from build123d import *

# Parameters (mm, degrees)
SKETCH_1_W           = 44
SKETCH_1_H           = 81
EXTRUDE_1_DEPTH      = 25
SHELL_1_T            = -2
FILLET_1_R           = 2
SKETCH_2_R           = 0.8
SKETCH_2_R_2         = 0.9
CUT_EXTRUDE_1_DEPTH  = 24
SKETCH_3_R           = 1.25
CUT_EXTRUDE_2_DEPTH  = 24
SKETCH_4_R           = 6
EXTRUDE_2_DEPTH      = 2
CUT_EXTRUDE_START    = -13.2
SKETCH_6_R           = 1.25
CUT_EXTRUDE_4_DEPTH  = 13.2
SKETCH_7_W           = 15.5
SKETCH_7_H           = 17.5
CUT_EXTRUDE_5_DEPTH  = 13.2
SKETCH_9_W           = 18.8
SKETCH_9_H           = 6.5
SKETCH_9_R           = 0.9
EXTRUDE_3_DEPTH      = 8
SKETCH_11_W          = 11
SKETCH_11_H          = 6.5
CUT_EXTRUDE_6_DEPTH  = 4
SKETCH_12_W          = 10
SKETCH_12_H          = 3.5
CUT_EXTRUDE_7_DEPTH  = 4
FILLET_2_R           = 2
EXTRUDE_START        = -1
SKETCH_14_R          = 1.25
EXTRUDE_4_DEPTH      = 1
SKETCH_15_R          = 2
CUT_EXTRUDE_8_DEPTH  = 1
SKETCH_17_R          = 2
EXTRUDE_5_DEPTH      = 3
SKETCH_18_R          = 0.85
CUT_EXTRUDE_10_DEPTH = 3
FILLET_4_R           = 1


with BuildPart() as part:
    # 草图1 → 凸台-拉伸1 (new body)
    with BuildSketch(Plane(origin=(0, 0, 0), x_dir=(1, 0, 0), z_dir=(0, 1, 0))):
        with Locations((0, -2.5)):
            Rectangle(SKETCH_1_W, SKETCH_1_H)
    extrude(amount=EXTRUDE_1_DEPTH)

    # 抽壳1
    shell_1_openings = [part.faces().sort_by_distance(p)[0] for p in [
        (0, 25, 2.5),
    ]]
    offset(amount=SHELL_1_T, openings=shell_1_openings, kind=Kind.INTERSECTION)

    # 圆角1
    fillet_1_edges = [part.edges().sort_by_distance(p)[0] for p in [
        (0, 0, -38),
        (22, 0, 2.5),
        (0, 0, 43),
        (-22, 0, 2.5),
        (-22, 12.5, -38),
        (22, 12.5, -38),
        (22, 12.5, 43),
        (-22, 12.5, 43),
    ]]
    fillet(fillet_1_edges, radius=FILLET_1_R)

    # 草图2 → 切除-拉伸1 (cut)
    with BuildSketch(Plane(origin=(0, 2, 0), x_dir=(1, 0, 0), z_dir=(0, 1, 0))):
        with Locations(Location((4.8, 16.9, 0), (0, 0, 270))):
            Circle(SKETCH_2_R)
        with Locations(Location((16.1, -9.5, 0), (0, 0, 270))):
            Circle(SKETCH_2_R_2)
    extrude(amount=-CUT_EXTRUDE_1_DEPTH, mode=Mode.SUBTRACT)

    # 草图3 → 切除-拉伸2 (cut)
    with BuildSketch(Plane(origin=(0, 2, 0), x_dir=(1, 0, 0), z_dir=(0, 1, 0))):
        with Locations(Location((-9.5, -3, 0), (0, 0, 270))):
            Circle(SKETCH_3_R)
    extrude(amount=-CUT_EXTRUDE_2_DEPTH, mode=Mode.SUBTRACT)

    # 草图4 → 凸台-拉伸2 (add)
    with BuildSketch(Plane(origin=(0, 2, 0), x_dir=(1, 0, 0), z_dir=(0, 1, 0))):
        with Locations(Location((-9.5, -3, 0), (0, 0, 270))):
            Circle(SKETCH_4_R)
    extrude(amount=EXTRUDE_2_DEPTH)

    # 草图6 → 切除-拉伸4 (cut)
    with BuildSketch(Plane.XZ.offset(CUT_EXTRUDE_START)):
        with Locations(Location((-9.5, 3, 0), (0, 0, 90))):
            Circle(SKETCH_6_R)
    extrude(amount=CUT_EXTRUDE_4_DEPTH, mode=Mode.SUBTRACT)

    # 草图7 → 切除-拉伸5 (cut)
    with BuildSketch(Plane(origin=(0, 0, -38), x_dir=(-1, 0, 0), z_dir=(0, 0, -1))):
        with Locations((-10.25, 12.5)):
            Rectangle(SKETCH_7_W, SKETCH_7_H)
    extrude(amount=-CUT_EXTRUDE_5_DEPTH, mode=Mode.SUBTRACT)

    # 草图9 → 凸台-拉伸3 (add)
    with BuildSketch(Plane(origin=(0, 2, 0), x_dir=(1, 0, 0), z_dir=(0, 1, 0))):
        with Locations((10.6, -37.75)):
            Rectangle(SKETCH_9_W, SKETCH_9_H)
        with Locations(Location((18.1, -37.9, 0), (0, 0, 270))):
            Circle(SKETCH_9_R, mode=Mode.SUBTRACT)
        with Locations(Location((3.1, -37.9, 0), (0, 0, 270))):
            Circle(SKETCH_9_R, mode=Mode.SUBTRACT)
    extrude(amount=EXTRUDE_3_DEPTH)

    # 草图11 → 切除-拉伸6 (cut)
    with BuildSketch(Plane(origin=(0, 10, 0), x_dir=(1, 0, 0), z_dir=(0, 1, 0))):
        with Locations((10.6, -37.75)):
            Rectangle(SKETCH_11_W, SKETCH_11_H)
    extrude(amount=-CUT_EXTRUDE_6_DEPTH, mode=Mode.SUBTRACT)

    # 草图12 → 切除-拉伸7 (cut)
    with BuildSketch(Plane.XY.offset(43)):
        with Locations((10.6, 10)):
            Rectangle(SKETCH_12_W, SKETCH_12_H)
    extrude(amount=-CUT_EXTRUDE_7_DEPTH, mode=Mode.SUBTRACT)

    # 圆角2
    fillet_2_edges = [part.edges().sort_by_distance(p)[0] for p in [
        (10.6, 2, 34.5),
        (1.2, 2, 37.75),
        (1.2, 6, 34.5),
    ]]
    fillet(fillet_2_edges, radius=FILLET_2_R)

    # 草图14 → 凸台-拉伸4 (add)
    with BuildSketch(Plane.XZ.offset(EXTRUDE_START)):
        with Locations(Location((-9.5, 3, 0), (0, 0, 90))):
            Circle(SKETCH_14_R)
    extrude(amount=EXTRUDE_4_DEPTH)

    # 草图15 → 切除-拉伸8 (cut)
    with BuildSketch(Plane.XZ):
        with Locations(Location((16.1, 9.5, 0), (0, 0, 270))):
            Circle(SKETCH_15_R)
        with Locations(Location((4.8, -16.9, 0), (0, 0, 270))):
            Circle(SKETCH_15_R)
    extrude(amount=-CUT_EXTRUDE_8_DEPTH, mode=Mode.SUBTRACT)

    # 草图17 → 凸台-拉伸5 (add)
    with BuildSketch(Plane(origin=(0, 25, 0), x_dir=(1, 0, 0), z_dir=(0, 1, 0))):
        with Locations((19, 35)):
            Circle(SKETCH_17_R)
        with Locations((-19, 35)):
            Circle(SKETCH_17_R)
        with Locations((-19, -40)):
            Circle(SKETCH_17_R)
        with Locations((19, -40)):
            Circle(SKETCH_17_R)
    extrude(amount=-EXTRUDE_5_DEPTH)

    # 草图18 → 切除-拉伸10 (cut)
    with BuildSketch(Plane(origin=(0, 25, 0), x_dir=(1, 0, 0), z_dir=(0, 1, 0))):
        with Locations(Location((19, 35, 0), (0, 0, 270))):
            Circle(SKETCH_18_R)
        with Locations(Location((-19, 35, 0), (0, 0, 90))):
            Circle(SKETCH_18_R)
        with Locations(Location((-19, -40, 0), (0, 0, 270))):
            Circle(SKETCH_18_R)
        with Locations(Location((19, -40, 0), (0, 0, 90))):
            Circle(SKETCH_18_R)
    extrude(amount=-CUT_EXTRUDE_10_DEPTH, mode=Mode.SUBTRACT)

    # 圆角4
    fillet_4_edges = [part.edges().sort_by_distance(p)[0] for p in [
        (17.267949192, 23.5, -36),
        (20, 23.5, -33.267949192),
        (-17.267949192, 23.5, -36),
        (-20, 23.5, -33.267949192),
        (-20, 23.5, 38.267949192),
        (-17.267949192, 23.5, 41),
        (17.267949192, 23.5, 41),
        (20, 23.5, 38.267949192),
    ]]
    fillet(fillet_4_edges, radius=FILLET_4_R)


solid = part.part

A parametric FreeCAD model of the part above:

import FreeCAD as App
import Part
import Sketcher
Q = App.Units.Quantity


def edges_at(feature, points):
    """Names of the edges that pass closest to the given points."""
    edges = feature.Shape.Edges
    near = lambda p: min(range(len(edges)), key=lambda i: edges[i].distToShape(Part.Vertex(*p))[0])
    return sorted({f"Edge{near(p) + 1}" for p in points})


def faces_at(feature, points):
    """Names of the faces that lie closest to the given points."""
    faces = feature.Shape.Faces
    near = lambda p: min(range(len(faces)), key=lambda i: faces[i].distToShape(Part.Vertex(*p))[0])
    return sorted({f"Face{near(p) + 1}" for p in points})

doc = App.newDocument("Part")
body = doc.addObject("PartDesign::Body", "Body")

sketch1 = body.newObject("Sketcher::SketchObject", "Sketch")
sketch1.AttachmentSupport = (doc.getObject("XZ_Plane"), [""])
sketch1.MapMode = "FlatFace"
sketch1.addGeometry([
    Part.LineSegment(App.Vector(-22, -38, 0), App.Vector(-22, 43, 0)),
    Part.LineSegment(App.Vector(-22, 43, 0), App.Vector(22, 43, 0)),
    Part.LineSegment(App.Vector(22, 43, 0), App.Vector(22, -38, 0)),
    Part.LineSegment(App.Vector(22, -38, 0), App.Vector(-22, -38, 0)),
], False)
sketch1.addConstraint([
    Sketcher.Constraint("Coincident", 0, 2, 1, 1),
    Sketcher.Constraint("Coincident", 1, 2, 2, 1),
    Sketcher.Constraint("Coincident", 2, 2, 3, 1),
    Sketcher.Constraint("Coincident", 3, 2, 0, 1),
    Sketcher.Constraint("Vertical", 0),
    Sketcher.Constraint("Horizontal", 1),
    Sketcher.Constraint("Vertical", 2),
    Sketcher.Constraint("Horizontal", 3),
    Sketcher.Constraint("DistanceX", 1, 1, 1, 2, Q("44 mm")),
    Sketcher.Constraint("DistanceY", 0, 1, 0, 2, Q("81 mm")),
    Sketcher.Constraint("DistanceX", 0, 2, -1, 1, Q("22 mm")),
    Sketcher.Constraint("DistanceY", -1, 1, 0, 2, Q("43 mm")),
])
pad1 = body.newObject("PartDesign::Pad", "Pad")
pad1.Profile = sketch1
pad1.Length = 25
pad1.Reversed = True
doc.recompute()

thickness = body.newObject("PartDesign::Thickness", "Thickness")
thickness.Base = (pad1, faces_at(pad1, [(0, 25, 2.5)]))
thickness.Value = 2
thickness.Reversed = True
thickness.Join = "Intersection"
doc.recompute()

fillet = body.newObject("PartDesign::Fillet", "Fillet")
fillet.Base = (thickness, edges_at(thickness, [
    (0, 0, -38),
    (22, 0, 2.5),
    (0, 0, 43),
    (-22, 0, 2.5),
    (-22, 12.5, -38),
    (22, 12.5, -38),
    (22, 12.5, 43),
    (-22, 12.5, 43),
]))
fillet.Radius = 2

sketch2 = body.newObject("Sketcher::SketchObject", "Sketch001")
sketch2.AttachmentSupport = (doc.getObject("XZ_Plane"), [""])
sketch2.MapMode = "FlatFace"
sketch2.AttachmentOffset = App.Placement(App.Vector(0, 0, -2), App.Rotation())
sketch2.addGeometry([
    Part.Circle(App.Vector(4.8, -16.9, 0), App.Vector(0, 0, 1), 0.8),
    Part.Circle(App.Vector(16.1, 9.5, 0), App.Vector(0, 0, 1), 0.9),
], False)
sketch2.addConstraint([
    Sketcher.Constraint("Diameter", 0, Q("1.6 mm")),
    Sketcher.Constraint("Diameter", 1, Q("1.8 mm")),
    Sketcher.Constraint("DistanceX", -1, 1, 0, 3, Q("4.8 mm")),
    Sketcher.Constraint("DistanceY", 0, 3, -1, 1, Q("16.9 mm")),
    Sketcher.Constraint("DistanceX", -1, 1, 1, 3, Q("16.1 mm")),
    Sketcher.Constraint("DistanceY", -1, 1, 1, 3, Q("9.5 mm")),
])
pocket1 = body.newObject("PartDesign::Pocket", "Pocket")
pocket1.Profile = sketch2
pocket1.Length = 24
pocket1.Reversed = True

sketch3 = body.newObject("Sketcher::SketchObject", "Sketch002")
sketch3.AttachmentSupport = (doc.getObject("XZ_Plane"), [""])
sketch3.MapMode = "FlatFace"
sketch3.AttachmentOffset = App.Placement(App.Vector(0, 0, -2), App.Rotation())
sketch3.addGeometry(Part.Circle(App.Vector(-9.5, 3, 0), App.Vector(0, 0, 1), 1.2), False)
sketch3.addConstraint([
    Sketcher.Constraint("Diameter", 0, Q("2.5 mm")),
    Sketcher.Constraint("DistanceY", -1, 1, 0, 3, Q("3 mm")),
    Sketcher.Constraint("DistanceX", 0, 3, -1, 1, Q("9.5 mm")),
])
pocket2 = body.newObject("PartDesign::Pocket", "Pocket001")
pocket2.Profile = sketch3
pocket2.Length = 24
pocket2.Reversed = True

sketch4 = body.newObject("Sketcher::SketchObject", "Sketch003")
sketch4.AttachmentSupport = (doc.getObject("XZ_Plane"), [""])
sketch4.MapMode = "FlatFace"
sketch4.AttachmentOffset = App.Placement(App.Vector(0, 0, -2), App.Rotation())
sketch4.addGeometry(Part.Circle(App.Vector(-10, 3, 0), App.Vector(0, 0, 1), 6), False)
sketch4.addConstraint([
    Sketcher.Constraint("Diameter", 0, Q("12 mm")),
    Sketcher.Constraint("DistanceY", -1, 1, 0, 3, Q("3 mm")),
    Sketcher.Constraint("DistanceX", 0, 3, -1, 1, Q("9.5 mm")),
])
pad2 = body.newObject("PartDesign::Pad", "Pad001")
pad2.Profile = sketch4
pad2.Length = 2
pad2.Reversed = True

sketch5 = body.newObject("Sketcher::SketchObject", "Sketch004")
sketch5.AttachmentSupport = (doc.getObject("XZ_Plane"), [""])
sketch5.MapMode = "FlatFace"
sketch5.AttachmentOffset = App.Placement(App.Vector(0, 0, -13.2), App.Rotation())
sketch5.addGeometry(Part.Circle(App.Vector(-9.5, 3, 0), App.Vector(0, 0, 1), 1.2), False)
sketch5.addConstraint([
    Sketcher.Constraint("Diameter", 0, Q("2.5 mm")),
    Sketcher.Constraint("DistanceY", -1, 1, 0, 3, Q("3 mm")),
    Sketcher.Constraint("DistanceX", 0, 3, -1, 1, Q("9.5 mm")),
])
pocket3 = body.newObject("PartDesign::Pocket", "Pocket002")
pocket3.Profile = sketch5
pocket3.Length = 13.2
pocket3.Reversed = True

sketch6 = body.newObject("Sketcher::SketchObject", "Sketch005")
sketch6.AttachmentSupport = (doc.getObject("XY_Plane"), [""])
sketch6.MapMode = "FlatFace"
sketch6.AttachmentOffset = App.Placement(App.Vector(0, 0, -38), App.Rotation())
sketch6.addGeometry([
    Part.LineSegment(App.Vector(18, 21, 0), App.Vector(18, 4, 0)),
    Part.LineSegment(App.Vector(18, 4, 0), App.Vector(2, 4, 0)),
    Part.LineSegment(App.Vector(2, 4, 0), App.Vector(2, 21, 0)),
    Part.LineSegment(App.Vector(2, 21, 0), App.Vector(18, 21, 0)),
], False)
sketch6.addConstraint([
    Sketcher.Constraint("Coincident", 0, 2, 1, 1),
    Sketcher.Constraint("Coincident", 1, 2, 2, 1),
    Sketcher.Constraint("Coincident", 2, 2, 3, 1),
    Sketcher.Constraint("Coincident", 3, 2, 0, 1),
    Sketcher.Constraint("Vertical", 0),
    Sketcher.Constraint("Horizontal", 1),
    Sketcher.Constraint("Vertical", 2),
    Sketcher.Constraint("Horizontal", 3),
    Sketcher.Constraint("DistanceX", 1, 2, 1, 1, Q("15.5 mm")),
    Sketcher.Constraint("DistanceY", 0, 2, 0, 1, Q("17.5 mm")),
    Sketcher.Constraint("DistanceX", -1, 1, 0, 2, Q("18 mm")),
    Sketcher.Constraint("DistanceY", -1, 1, 0, 2, Q("3.75 mm")),
])
pocket4 = body.newObject("PartDesign::Pocket", "Pocket003")
pocket4.Profile = sketch6
pocket4.Length = 13.2
pocket4.Reversed = True

sketch7 = body.newObject("Sketcher::SketchObject", "Sketch006")
sketch7.AttachmentSupport = (doc.getObject("XZ_Plane"), [""])
sketch7.MapMode = "FlatFace"
sketch7.AttachmentOffset = App.Placement(App.Vector(0, 0, -2), App.Rotation())
sketch7.addGeometry([
    Part.LineSegment(App.Vector(1.2, 34.5, 0), App.Vector(1.2, 41, 0)),
    Part.LineSegment(App.Vector(1.2, 41, 0), App.Vector(20, 41, 0)),
    Part.LineSegment(App.Vector(20, 41, 0), App.Vector(20, 34.5, 0)),
    Part.LineSegment(App.Vector(20, 34.5, 0), App.Vector(1.2, 34.5, 0)),
    Part.Circle(App.Vector(3.1, 37.9, 0), App.Vector(0, 0, 1), 0.9),
    Part.Circle(App.Vector(18.1, 37.9, 0), App.Vector(0, 0, 1), 0.9),
], False)
sketch7.addConstraint([
    Sketcher.Constraint("Coincident", 0, 2, 1, 1),
    Sketcher.Constraint("Coincident", 1, 2, 2, 1),
    Sketcher.Constraint("Coincident", 2, 2, 3, 1),
    Sketcher.Constraint("Coincident", 3, 2, 0, 1),
    Sketcher.Constraint("Vertical", 0),
    Sketcher.Constraint("Horizontal", 1),
    Sketcher.Constraint("Vertical", 2),
    Sketcher.Constraint("Horizontal", 3),
    Sketcher.Constraint("Equal", 4, 5),
    Sketcher.Constraint("Horizontal", 4, 3, 5, 3),
    Sketcher.Constraint("Diameter", 4, Q("1.8 mm")),
    Sketcher.Constraint("DistanceX", 1, 1, 1, 2, Q("18.8 mm")),
    Sketcher.Constraint("DistanceY", 0, 1, 0, 2, Q("6.5 mm")),
    Sketcher.Constraint("DistanceY", -1, 1, 0, 2, Q("41 mm")),
    Sketcher.Constraint("DistanceX", -1, 1, 1, 2, Q("20 mm")),
    Sketcher.Constraint("DistanceX", 4, 3, 5, 3, Q("15 mm")),
    Sketcher.Constraint("DistanceX", -1, 1, 4, 3, Q("3.1 mm")),
    Sketcher.Constraint("DistanceY", -1, 1, 4, 3, Q("37.9 mm")),
])
pad3 = body.newObject("PartDesign::Pad", "Pad002")
pad3.Profile = sketch7
pad3.Length = 8
pad3.Reversed = True

sketch8 = body.newObject("Sketcher::SketchObject", "Sketch007")
sketch8.AttachmentSupport = (doc.getObject("XZ_Plane"), [""])
sketch8.MapMode = "FlatFace"
sketch8.AttachmentOffset = App.Placement(App.Vector(0, 0, -10), App.Rotation())
sketch8.addGeometry([
    Part.LineSegment(App.Vector(5, 34, 0), App.Vector(5, 41, 0)),
    Part.LineSegment(App.Vector(5, 41, 0), App.Vector(16, 41, 0)),
    Part.LineSegment(App.Vector(16, 41, 0), App.Vector(16, 34, 0)),
    Part.LineSegment(App.Vector(16, 34, 0), App.Vector(5, 34, 0)),
], False)
sketch8.addConstraint([
    Sketcher.Constraint("Coincident", 0, 2, 1, 1),
    Sketcher.Constraint("Coincident", 1, 2, 2, 1),
    Sketcher.Constraint("Coincident", 2, 2, 3, 1),
    Sketcher.Constraint("Coincident", 3, 2, 0, 1),
    Sketcher.Constraint("Vertical", 0),
    Sketcher.Constraint("Horizontal", 1),
    Sketcher.Constraint("Vertical", 2),
    Sketcher.Constraint("Horizontal", 3),
    Sketcher.Constraint("DistanceX", 1, 1, 1, 2, Q("11 mm")),
    Sketcher.Constraint("DistanceY", 0, 1, 0, 2, Q("6.5 mm")),
    Sketcher.Constraint("DistanceY", -1, 1, 0, 2, Q("41 mm")),
    Sketcher.Constraint("DistanceX", -1, 1, 0, 2, Q("5.1 mm")),
])
pocket5 = body.newObject("PartDesign::Pocket", "Pocket004")
pocket5.Profile = sketch8
pocket5.Length = 4
pocket5.Reversed = True

sketch9 = body.newObject("Sketcher::SketchObject", "Sketch008")
sketch9.AttachmentSupport = (doc.getObject("XY_Plane"), [""])
sketch9.MapMode = "FlatFace"
sketch9.AttachmentOffset = App.Placement(App.Vector(0, 0, 43), App.Rotation())
sketch9.addGeometry([
    Part.LineSegment(App.Vector(5.6, 11.8, 0), App.Vector(5.6, 8.2, 0)),
    Part.LineSegment(App.Vector(5.6, 8.2, 0), App.Vector(15.6, 8.2, 0)),
    Part.LineSegment(App.Vector(15.6, 8.2, 0), App.Vector(15.6, 11.8, 0)),
    Part.LineSegment(App.Vector(15.6, 11.8, 0), App.Vector(5.6, 11.8, 0)),
], False)
sketch9.addConstraint([
    Sketcher.Constraint("Coincident", 0, 2, 1, 1),
    Sketcher.Constraint("Coincident", 1, 2, 2, 1),
    Sketcher.Constraint("Coincident", 2, 2, 3, 1),
    Sketcher.Constraint("Coincident", 3, 2, 0, 1),
    Sketcher.Constraint("Vertical", 0),
    Sketcher.Constraint("Horizontal", 1),
    Sketcher.Constraint("Vertical", 2),
    Sketcher.Constraint("Horizontal", 3),
    Sketcher.Constraint("DistanceX", 1, 1, 1, 2, Q("10 mm")),
    Sketcher.Constraint("DistanceY", 0, 2, 0, 1, Q("3.5 mm")),
    Sketcher.Constraint("DistanceX", -1, 1, 0, 2, Q("5.6 mm")),
    Sketcher.Constraint("DistanceY", -1, 1, 0, 2, Q("8.25 mm")),
])
pocket6 = body.newObject("PartDesign::Pocket", "Pocket005")
pocket6.Profile = sketch9
pocket6.Length = 4
doc.recompute()

fillet2 = body.newObject("PartDesign::Fillet", "Fillet001")
fillet2.Base = (pocket6, edges_at(pocket6, [(10.6, 2, 34.5), (1.2, 2, 37.75), (1.2, 6, 34.5)]))
fillet2.Radius = 2

sketch10 = body.newObject("Sketcher::SketchObject", "Sketch009")
sketch10.AttachmentSupport = (doc.getObject("XZ_Plane"), [""])
sketch10.MapMode = "FlatFace"
sketch10.AttachmentOffset = App.Placement(App.Vector(0, 0, -1), App.Rotation())
sketch10.addGeometry(Part.Circle(App.Vector(-9.5, 3, 0), App.Vector(0, 0, 1), 1.2), False)
sketch10.addConstraint([
    Sketcher.Constraint("Diameter", 0, Q("2.5 mm")),
    Sketcher.Constraint("DistanceY", -1, 1, 0, 3, Q("3 mm")),
    Sketcher.Constraint("DistanceX", 0, 3, -1, 1, Q("9.5 mm")),
])
pad4 = body.newObject("PartDesign::Pad", "Pad003")
pad4.Profile = sketch10
pad4.Length = 1

sketch11 = body.newObject("Sketcher::SketchObject", "Sketch010")
sketch11.AttachmentSupport = (doc.getObject("XZ_Plane"), [""])
sketch11.MapMode = "FlatFace"
sketch11.addGeometry([
    Part.Circle(App.Vector(16.1, 9.5, 0), App.Vector(0, 0, 1), 2),
    Part.Circle(App.Vector(4.8, -16.9, 0), App.Vector(0, 0, 1), 2),
], False)
sketch11.addConstraint([
    Sketcher.Constraint("Equal", 0, 1),
    Sketcher.Constraint("Diameter", 0, Q("4 mm")),
    Sketcher.Constraint("DistanceX", -1, 1, 0, 3, Q("16.1 mm")),
    Sketcher.Constraint("DistanceY", -1, 1, 0, 3, Q("9.5 mm")),
    Sketcher.Constraint("DistanceX", -1, 1, 1, 3, Q("4.8 mm")),
    Sketcher.Constraint("DistanceY", 1, 3, -1, 1, Q("16.9 mm")),
])
pocket7 = body.newObject("PartDesign::Pocket", "Pocket006")
pocket7.Profile = sketch11
pocket7.Length = 1

sketch12 = body.newObject("Sketcher::SketchObject", "Sketch011")
sketch12.AttachmentSupport = (doc.getObject("XZ_Plane"), [""])
sketch12.MapMode = "FlatFace"
sketch12.AttachmentOffset = App.Placement(App.Vector(0, 0, -25), App.Rotation())
sketch12.addGeometry([
    Part.Circle(App.Vector(19, -35, 0), App.Vector(0, 0, 1), 2),
    Part.Circle(App.Vector(-19, -35, 0), App.Vector(0, 0, 1), 2),
    Part.Circle(App.Vector(-19, 40, 0), App.Vector(0, 0, 1), 2),
    Part.Circle(App.Vector(19, 40, 0), App.Vector(0, 0, 1), 2),
], False)
sketch12.addConstraint([
    Sketcher.Constraint("Equal", 0, 1),
    Sketcher.Constraint("Equal", 1, 2),
    Sketcher.Constraint("Equal", 2, 3),
    Sketcher.Constraint("Symmetric", 0, 3, 1, 3, -2),
    Sketcher.Constraint("Symmetric", 2, 3, 3, 3, -2),
    Sketcher.Constraint("Vertical", 1, 3, 2, 3),
    Sketcher.Constraint("Diameter", 0, Q("4 mm")),
    Sketcher.Constraint("DistanceX", -1, 1, 0, 3, Q("19 mm")),
    Sketcher.Constraint("DistanceY", 0, 3, -1, 1, Q("35 mm")),
    Sketcher.Constraint("DistanceY", -1, 1, 2, 3, Q("40 mm")),
])
pad5 = body.newObject("PartDesign::Pad", "Pad004")
pad5.Profile = sketch12
pad5.Length = 3

sketch13 = body.newObject("Sketcher::SketchObject", "Sketch012")
sketch13.AttachmentSupport = (doc.getObject("XZ_Plane"), [""])
sketch13.MapMode = "FlatFace"
sketch13.AttachmentOffset = App.Placement(App.Vector(0, 0, -25), App.Rotation())
sketch13.addGeometry([
    Part.Circle(App.Vector(19, -35, 0), App.Vector(0, 0, 1), 0.8),
    Part.Circle(App.Vector(-19, -35, 0), App.Vector(0, 0, 1), 0.8),
    Part.Circle(App.Vector(-19, 40, 0), App.Vector(0, 0, 1), 0.8),
    Part.Circle(App.Vector(19, 40, 0), App.Vector(0, 0, 1), 0.8),
], False)
sketch13.addConstraint([
    Sketcher.Constraint("Equal", 0, 1),
    Sketcher.Constraint("Equal", 1, 2),
    Sketcher.Constraint("Equal", 2, 3),
    Sketcher.Constraint("Symmetric", 0, 3, 1, 3, -2),
    Sketcher.Constraint("Symmetric", 2, 3, 3, 3, -2),
    Sketcher.Constraint("Vertical", 1, 3, 2, 3),
    Sketcher.Constraint("Diameter", 0, Q("1.7 mm")),
    Sketcher.Constraint("DistanceX", -1, 1, 0, 3, Q("19 mm")),
    Sketcher.Constraint("DistanceY", 0, 3, -1, 1, Q("35 mm")),
    Sketcher.Constraint("DistanceY", -1, 1, 2, 3, Q("40 mm")),
])
pocket8 = body.newObject("PartDesign::Pocket", "Pocket007")
pocket8.Profile = sketch13
pocket8.Length = 3
pocket8.Reversed = True
doc.recompute()

fillet3 = body.newObject("PartDesign::Fillet", "Fillet002")
fillet3.Base = (pocket8, edges_at(pocket8, [
    (17.268, 23.5, -36),
    (20, 23.5, -33.268),
    (-17.268, 23.5, -36),
    (-20, 23.5, -33.268),
    (-20, 23.5, 38.268),
    (-17.268, 23.5, 41),
    (17.268, 23.5, 41),
    (20, 23.5, 38.268),
]))
fillet3.Radius = 1

doc.recompute()
